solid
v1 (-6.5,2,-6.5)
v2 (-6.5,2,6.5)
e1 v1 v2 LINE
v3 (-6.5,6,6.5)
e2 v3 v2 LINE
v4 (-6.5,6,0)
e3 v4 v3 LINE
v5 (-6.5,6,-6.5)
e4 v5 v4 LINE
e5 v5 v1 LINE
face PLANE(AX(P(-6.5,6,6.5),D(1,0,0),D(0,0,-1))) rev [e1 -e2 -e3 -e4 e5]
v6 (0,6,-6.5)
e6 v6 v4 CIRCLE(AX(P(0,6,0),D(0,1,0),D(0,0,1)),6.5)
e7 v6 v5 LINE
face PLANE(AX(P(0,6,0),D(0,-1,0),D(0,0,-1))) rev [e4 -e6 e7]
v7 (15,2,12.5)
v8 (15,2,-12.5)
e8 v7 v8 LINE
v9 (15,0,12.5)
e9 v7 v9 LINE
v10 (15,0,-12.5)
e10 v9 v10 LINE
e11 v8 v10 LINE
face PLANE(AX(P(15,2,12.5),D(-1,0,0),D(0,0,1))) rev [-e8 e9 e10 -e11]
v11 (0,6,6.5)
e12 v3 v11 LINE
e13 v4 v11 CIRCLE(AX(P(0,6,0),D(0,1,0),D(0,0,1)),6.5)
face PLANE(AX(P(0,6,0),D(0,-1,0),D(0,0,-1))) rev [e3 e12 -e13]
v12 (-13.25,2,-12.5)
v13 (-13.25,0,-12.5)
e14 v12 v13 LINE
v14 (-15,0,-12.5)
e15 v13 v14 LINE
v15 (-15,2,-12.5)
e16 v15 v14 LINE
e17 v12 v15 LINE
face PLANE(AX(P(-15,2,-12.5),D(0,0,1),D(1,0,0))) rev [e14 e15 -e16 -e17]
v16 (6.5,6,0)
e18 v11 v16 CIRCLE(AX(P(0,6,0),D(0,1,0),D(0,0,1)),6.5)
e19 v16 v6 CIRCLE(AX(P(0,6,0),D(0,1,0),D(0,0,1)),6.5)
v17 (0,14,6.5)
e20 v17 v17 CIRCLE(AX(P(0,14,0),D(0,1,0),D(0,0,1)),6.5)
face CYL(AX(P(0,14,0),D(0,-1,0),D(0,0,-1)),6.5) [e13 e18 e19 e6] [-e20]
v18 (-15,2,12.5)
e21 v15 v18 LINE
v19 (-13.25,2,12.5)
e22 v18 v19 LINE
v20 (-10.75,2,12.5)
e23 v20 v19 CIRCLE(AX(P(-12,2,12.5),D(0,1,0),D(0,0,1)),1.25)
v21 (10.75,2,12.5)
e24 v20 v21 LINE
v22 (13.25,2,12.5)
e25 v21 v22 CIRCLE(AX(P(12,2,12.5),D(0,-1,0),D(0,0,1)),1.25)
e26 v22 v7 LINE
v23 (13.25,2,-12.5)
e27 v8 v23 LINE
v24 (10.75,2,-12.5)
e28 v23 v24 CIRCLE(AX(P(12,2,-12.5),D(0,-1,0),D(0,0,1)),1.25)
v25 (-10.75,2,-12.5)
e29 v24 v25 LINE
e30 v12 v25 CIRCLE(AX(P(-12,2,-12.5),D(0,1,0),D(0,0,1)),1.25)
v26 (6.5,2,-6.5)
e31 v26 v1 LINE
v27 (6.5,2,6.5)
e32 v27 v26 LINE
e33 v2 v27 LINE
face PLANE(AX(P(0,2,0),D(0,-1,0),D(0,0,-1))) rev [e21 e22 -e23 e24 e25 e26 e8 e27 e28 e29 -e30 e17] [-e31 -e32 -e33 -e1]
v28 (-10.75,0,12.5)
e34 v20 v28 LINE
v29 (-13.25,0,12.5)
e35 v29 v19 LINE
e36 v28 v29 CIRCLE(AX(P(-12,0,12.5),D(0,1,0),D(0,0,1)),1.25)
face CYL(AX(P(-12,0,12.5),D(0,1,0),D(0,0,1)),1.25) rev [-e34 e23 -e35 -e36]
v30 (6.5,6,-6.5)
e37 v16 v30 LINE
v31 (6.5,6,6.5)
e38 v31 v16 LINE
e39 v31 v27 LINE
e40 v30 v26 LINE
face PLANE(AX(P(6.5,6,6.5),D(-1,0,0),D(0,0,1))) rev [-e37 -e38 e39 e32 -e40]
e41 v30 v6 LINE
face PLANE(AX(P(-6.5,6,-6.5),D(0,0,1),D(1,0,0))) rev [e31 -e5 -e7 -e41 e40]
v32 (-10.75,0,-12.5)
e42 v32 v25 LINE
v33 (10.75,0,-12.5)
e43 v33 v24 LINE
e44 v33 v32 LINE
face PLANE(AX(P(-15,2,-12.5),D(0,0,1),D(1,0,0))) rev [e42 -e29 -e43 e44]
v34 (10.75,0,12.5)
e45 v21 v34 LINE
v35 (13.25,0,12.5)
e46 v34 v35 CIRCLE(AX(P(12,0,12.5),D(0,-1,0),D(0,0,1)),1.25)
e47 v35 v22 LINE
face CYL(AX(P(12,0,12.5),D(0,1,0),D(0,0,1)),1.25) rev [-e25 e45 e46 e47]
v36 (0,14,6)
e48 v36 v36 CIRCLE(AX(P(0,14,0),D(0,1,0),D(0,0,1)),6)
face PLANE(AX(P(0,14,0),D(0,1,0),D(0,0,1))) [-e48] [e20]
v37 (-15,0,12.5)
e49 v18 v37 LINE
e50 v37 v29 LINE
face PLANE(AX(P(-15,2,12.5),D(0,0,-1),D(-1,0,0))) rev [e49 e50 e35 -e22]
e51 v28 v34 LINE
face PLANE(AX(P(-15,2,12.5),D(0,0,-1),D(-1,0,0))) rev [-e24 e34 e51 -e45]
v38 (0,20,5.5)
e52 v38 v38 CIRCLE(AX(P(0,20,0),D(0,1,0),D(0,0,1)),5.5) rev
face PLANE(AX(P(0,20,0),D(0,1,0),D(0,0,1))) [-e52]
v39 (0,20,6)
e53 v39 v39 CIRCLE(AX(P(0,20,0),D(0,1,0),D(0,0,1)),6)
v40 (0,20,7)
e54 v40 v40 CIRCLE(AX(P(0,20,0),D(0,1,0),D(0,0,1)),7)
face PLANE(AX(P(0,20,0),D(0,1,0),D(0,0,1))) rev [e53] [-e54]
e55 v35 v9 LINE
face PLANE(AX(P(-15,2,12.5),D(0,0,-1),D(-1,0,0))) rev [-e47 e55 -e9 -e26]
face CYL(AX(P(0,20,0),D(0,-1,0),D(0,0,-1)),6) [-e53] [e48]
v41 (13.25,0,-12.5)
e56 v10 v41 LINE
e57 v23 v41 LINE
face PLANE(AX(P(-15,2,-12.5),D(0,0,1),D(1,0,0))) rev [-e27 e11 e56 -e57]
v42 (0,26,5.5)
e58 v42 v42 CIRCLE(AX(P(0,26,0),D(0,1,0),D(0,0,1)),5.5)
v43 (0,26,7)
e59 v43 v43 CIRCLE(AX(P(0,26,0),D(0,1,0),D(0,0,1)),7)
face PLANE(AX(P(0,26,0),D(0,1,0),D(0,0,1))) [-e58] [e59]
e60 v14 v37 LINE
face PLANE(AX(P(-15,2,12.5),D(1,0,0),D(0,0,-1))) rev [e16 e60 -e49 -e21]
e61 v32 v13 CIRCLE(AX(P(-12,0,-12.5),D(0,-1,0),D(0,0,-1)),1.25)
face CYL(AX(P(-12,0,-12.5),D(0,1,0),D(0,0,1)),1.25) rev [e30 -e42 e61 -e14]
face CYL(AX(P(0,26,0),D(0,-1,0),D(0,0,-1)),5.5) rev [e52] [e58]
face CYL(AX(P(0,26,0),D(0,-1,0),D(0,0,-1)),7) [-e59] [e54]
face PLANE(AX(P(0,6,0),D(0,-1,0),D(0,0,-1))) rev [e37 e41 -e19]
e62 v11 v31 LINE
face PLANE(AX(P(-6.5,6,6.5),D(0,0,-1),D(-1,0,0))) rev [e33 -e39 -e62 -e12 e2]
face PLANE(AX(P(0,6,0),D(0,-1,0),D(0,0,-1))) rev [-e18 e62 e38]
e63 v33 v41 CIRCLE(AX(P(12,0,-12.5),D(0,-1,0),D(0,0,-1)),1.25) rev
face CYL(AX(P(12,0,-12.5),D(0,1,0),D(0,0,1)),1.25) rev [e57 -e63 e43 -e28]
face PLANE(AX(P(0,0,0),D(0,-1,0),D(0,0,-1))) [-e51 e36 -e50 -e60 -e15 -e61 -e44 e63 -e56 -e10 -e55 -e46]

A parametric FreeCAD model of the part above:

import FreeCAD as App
import Part
import Sketcher
from FreeCAD import Vector
Q = App.Units.Quantity


def add_polygon(sketch, points):
    """Adds a closed chain of lines whose ends are joined by coincident constraints."""
    first, n = sketch.GeometryCount, len(points)
    for a, b in zip(points, points[1:] + points[:1]):
        sketch.addGeometry(Part.LineSegment(App.Vector(*a, 0), App.Vector(*b, 0)), False)
    for i in range(n):
        sketch.addConstraint(Sketcher.Constraint("Coincident", first + i, 2, first + (i + 1) % n, 1))

doc = App.newDocument("Part")
body = doc.addObject("PartDesign::Body", "Body")

sketch1 = doc.addObject("Sketcher::SketchObject", "Sketch")
body.addObject(sketch1)
sketch1.AttachmentSupport = (doc.XZ_Plane, [""])
sketch1.MapMode = "FlatFace"
add_polygon(sketch1, [(-15, -12), (-15, 12), (15, 12), (15, -12)])
sketch1.addConstraint([
    Sketcher.Constraint("Vertical", 0),
    Sketcher.Constraint("Horizontal", 1),
    Sketcher.Constraint("Vertical", 2),
    Sketcher.Constraint("Horizontal", 3),
    Sketcher.Constraint("Symmetric", 0, 2, 2, 2, -1, 1),
    Sketcher.Constraint("DistanceX", 1, 1, 1, 2, Q("30 mm")),
    Sketcher.Constraint("DistanceY", 0, 1, 0, 2, Q("25 mm")),
])
pad1 = doc.addObject("PartDesign::Pad", "Pad")
body.addObject(pad1)
pad1.Profile = sketch1
pad1.Length = 2
pad1.Reversed = True

sketch2 = doc.addObject("Sketcher::SketchObject", "Sketch001")
body.addObject(sketch2)
sketch2.AttachmentSupport = (doc.XZ_Plane, [""])
sketch2.MapMode = "FlatFace"
sketch2.AttachmentOffset = App.Placement(Vector(0, 0, -2), App.Rotation())
sketch2.addGeometry([
    Part.Circle(Vector(-12, -12.5, 0), Vector(0, 0, 1), 1.2),
    Part.Circle(Vector(-12, 12.5, 0), Vector(0, 0, 1), 1.2),
], False)
sketch2.addConstraint([
    Sketcher.Constraint("Equal", 0, 1),
    Sketcher.Constraint("Symmetric", 0, 3, 1, 3, -1),
    Sketcher.Constraint("Diameter", 0, Q("2.5 mm")),
    Sketcher.Constraint("DistanceX", 0, 3, -1, 1, Q("12 mm")),
    Sketcher.Constraint("DistanceY", 0, 3, 1, 3, Q("25 mm")),
])
pocket1 = doc.addObject("PartDesign::Pocket", "Pocket")
body.addObject(pocket1)
pocket1.Profile = sketch2
pocket1.Type = "ThroughAll"
pocket1.Reversed = True
doc.recompute()

mirrored = doc.addObject("PartDesign::Mirrored", "Mirrored")
body.addObject(mirrored)
mirrored.Originals = [pocket1]
mirrored.MirrorPlane = (doc.YZ_Plane, [""])
body.Tip = mirrored

sketch3 = doc.addObject("Sketcher::SketchObject", "Sketch002")
body.addObject(sketch3)
sketch3.AttachmentSupport = (doc.XZ_Plane, [""])
sketch3.MapMode = "FlatFace"
sketch3.AttachmentOffset = App.Placement(Vector(0, 0, -2), App.Rotation())
add_polygon(sketch3, [(-6, -6), (-6, 6), (6, 6), (6, -6)])
sketch3.addConstraint([
    Sketcher.Constraint("Vertical", 0),
    Sketcher.Constraint("Horizontal", 1),
    Sketcher.Constraint("Vertical", 2),
    Sketcher.Constraint("Horizontal", 3),
    Sketcher.Constraint("Symmetric", 0, 2, 2, 2, -1, 1),
    Sketcher.Constraint("Equal", 3, 0),
    Sketcher.Constraint("DistanceX", 1, 1, 1, 2, Q("13 mm")),
])
pad2 = doc.addObject("PartDesign::Pad", "Pad001")
body.addObject(pad2)
pad2.Profile = sketch3
pad2.Length = 4
pad2.Reversed = True

sketch4 = doc.addObject("Sketcher::SketchObject", "Sketch003")
body.addObject(sketch4)
sketch4.AttachmentSupport = (doc.XZ_Plane, [""])
sketch4.MapMode = "FlatFace"
sketch4.AttachmentOffset = App.Placement(Vector(0, 0, -6), App.Rotation())
sketch4.addGeometry(Part.Circle(Vector(0, 0, 0), Vector(0, 0, 1), 6), False)
sketch4.addConstraint([
    Sketcher.Constraint("Coincident", 0, 3, -1, 1),
    Sketcher.Constraint("Diameter", 0, Q("13 mm")),
])
pad3 = doc.addObject("PartDesign::Pad", "Pad002")
body.addObject(pad3)
pad3.Profile = sketch4
pad3.Length = 8
pad3.Reversed = True

sketch5 = doc.addObject("Sketcher::SketchObject", "Sketch004")
body.addObject(sketch5)
sketch5.AttachmentSupport = (doc.XZ_Plane, [""])
sketch5.MapMode = "FlatFace"
sketch5.AttachmentOffset = App.Placement(Vector(0, 0, -14), App.Rotation())
sketch5.addGeometry(Part.Circle(Vector(0, 0, 0), Vector(0, 0, 1), 6), False)
sketch5.addConstraint([
    Sketcher.Constraint("Coincident", 0, 3, -1, 1),
    Sketcher.Constraint("Diameter", 0, Q("12 mm")),
])
pad4 = doc.addObject("PartDesign::Pad", "Pad003")
body.addObject(pad4)
pad4.Profile = sketch5
pad4.Length = 6
pad4.Reversed = True

sketch6 = doc.addObject("Sketcher::SketchObject", "Sketch005")
body.addObject(sketch6)
sketch6.AttachmentSupport = (doc.XZ_Plane, [""])
sketch6.MapMode = "FlatFace"
sketch6.AttachmentOffset = App.Placement(Vector(0, 0, -20), App.Rotation())
sketch6.addGeometry([
    Part.Circle(Vector(0, 0, 0), Vector(0, 0, 1), 7),
    Part.Circle(Vector(0, 0, 0), Vector(0, 0, 1), 6),
], False)
sketch6.addConstraint([
    Sketcher.Constraint("Coincident", 0, 3, -1, 1),
    Sketcher.Constraint("Coincident", 1, 3, -1, 1),
    Sketcher.Constraint("Diameter", 0, Q("14 mm")),
    Sketcher.Constraint("Diameter", 1, Q("11 mm")),
])
pad5 = doc.addObject("PartDesign::Pad", "Pad004")
body.addObject(pad5)
pad5.Profile = sketch6
pad5.Length = 6
pad5.Reversed = True

doc.recompute()
